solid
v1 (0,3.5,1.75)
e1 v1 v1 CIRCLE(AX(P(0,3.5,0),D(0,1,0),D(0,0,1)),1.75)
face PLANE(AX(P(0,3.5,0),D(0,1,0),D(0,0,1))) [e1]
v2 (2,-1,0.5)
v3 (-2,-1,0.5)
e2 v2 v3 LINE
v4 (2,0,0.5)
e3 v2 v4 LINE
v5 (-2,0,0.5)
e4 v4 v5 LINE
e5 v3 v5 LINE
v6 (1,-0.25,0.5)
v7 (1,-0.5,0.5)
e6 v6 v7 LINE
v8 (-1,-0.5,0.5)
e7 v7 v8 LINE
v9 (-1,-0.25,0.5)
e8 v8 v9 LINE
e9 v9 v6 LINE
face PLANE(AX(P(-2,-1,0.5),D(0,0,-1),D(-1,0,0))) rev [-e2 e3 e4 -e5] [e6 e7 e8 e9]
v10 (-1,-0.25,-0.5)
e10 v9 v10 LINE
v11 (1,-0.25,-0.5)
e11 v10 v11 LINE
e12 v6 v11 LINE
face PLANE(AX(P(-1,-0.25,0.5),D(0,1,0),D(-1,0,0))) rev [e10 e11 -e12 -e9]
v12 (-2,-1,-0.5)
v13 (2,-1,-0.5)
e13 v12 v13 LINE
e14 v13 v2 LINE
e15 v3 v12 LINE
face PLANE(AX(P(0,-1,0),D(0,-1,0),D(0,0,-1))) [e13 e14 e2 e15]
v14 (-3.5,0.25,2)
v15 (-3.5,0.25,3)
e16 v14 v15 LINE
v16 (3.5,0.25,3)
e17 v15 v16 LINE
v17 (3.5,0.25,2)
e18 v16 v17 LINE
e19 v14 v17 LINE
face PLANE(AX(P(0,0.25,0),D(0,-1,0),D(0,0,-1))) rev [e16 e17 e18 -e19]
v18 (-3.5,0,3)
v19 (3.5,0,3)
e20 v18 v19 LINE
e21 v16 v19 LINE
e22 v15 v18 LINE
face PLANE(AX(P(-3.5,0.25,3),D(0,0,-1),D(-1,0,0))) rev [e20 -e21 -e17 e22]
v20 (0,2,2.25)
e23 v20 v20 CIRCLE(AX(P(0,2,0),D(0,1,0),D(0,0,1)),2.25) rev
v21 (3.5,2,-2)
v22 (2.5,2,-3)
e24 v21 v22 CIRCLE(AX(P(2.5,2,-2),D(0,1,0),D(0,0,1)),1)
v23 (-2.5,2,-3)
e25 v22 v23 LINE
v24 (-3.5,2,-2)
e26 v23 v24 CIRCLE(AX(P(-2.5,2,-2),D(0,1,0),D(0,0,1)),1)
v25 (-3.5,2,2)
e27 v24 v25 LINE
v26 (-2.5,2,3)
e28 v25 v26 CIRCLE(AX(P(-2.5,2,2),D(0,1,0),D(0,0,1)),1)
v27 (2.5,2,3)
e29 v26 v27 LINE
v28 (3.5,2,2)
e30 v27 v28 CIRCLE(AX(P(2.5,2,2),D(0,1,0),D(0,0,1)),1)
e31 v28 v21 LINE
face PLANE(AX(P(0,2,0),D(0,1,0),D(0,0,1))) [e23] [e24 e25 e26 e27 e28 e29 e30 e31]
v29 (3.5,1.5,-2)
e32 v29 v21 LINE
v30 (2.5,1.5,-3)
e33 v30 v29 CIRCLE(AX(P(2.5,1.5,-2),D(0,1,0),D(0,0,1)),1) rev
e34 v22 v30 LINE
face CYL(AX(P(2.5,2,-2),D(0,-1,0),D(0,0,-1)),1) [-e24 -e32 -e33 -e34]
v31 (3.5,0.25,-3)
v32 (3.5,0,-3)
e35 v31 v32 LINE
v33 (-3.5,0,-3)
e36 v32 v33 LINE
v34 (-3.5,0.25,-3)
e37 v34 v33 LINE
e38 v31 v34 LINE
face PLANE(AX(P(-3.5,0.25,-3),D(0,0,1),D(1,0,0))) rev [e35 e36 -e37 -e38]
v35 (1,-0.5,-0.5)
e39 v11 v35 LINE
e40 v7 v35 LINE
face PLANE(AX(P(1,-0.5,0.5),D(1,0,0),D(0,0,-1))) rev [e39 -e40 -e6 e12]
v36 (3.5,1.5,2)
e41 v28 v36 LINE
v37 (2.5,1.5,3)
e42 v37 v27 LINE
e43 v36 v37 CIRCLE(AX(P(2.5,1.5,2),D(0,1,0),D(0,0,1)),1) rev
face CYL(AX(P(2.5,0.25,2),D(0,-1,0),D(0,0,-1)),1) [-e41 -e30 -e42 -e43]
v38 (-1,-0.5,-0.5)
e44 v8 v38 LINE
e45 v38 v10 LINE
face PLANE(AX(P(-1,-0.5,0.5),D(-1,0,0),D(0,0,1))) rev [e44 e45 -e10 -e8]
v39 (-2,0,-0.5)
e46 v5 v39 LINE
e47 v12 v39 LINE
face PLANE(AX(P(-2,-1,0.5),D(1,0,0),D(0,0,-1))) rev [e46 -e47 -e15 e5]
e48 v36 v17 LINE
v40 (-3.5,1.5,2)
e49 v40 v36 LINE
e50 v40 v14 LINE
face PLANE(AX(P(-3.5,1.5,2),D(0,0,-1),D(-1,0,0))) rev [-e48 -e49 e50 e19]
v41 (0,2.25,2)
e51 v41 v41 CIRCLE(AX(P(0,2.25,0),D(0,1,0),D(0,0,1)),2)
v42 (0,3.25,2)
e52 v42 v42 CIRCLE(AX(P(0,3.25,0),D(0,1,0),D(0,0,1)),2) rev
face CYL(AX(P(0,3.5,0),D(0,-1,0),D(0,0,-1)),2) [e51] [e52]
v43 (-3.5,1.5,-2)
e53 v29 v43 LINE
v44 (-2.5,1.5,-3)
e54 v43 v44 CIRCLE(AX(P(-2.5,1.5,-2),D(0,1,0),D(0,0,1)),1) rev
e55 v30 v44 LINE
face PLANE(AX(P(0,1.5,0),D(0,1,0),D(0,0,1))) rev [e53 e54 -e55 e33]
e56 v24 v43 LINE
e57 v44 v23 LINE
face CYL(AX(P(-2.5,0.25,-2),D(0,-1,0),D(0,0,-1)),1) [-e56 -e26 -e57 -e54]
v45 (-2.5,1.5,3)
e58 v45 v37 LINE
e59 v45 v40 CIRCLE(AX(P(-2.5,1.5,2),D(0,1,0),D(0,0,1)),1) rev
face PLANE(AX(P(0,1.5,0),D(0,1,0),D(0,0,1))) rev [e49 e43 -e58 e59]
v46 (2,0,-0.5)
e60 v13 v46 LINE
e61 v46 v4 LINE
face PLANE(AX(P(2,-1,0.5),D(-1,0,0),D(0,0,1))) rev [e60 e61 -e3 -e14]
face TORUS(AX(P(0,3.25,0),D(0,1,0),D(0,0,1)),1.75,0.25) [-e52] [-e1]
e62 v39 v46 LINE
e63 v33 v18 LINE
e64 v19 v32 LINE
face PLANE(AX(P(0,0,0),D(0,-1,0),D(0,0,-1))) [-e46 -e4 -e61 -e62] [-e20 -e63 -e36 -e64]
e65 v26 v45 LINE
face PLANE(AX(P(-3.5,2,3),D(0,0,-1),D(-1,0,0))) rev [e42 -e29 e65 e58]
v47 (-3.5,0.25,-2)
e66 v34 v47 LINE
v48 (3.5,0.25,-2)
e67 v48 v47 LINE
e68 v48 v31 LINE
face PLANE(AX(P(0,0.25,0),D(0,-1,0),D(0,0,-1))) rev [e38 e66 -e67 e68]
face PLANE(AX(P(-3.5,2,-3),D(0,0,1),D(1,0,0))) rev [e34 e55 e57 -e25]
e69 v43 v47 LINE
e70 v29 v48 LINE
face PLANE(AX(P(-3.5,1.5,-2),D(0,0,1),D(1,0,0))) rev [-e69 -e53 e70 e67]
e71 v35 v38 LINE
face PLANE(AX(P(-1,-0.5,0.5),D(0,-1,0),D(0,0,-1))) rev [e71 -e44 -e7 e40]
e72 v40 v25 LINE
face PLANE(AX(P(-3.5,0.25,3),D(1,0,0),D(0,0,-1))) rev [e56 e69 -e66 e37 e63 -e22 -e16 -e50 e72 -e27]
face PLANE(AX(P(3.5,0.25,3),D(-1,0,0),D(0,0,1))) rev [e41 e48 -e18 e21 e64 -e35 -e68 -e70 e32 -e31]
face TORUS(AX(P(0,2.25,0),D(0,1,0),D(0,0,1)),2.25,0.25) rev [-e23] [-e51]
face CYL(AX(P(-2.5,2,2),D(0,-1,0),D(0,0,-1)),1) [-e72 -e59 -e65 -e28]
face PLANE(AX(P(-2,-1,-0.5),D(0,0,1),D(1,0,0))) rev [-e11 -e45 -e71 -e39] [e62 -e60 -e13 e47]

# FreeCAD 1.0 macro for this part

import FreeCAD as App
import Part
import Sketcher
from FreeCAD import Vector


def edges_at(feature, points):
    """Names of the edges that pass closest to the given points."""
    edges = feature.Shape.Edges
    near = lambda p: min(range(len(edges)), key=lambda i: edges[i].distToShape(Part.Vertex(*p))[0])
    return sorted({f"Edge{near(p) + 1}" for p in points})


def add_polygon(sketch, points):
    """Adds a closed chain of lines whose ends are joined by coincident constraints."""
    first, n = sketch.GeometryCount, len(points)
    for a, b in zip(points, points[1:] + points[:1]):
        sketch.addGeometry(Part.LineSegment(App.Vector(*a, 0), App.Vector(*b, 0)), False)
    for i in range(n):
        sketch.addConstraint(Sketcher.Constraint("Coincident", first + i, 2, first + (i + 1) % n, 1))

doc = App.newDocument("Part")
body = doc.addObject("PartDesign::Body", "Body")

# Sketch on XZ plane
sketch1 = body.newObject("Sketcher::SketchObject", "Sketch")
sketch1.AttachmentSupport = (doc.getObject("XZ_Plane"), [""])
sketch1.MapMode = "FlatFace"
add_polygon(sketch1, [(-3.5, -3), (-3.5, 3), (3.5, 3), (3.5, -3)])  # lines 0-3
sketch1.addConstraint([
    Sketcher.Constraint("Vertical", 0),
    Sketcher.Constraint("Horizontal", 1),
    Sketcher.Constraint("Vertical", 2),
    Sketcher.Constraint("Horizontal", 3),
    Sketcher.Constraint("Symmetric", 0, 2, 2, 2, -1, 1),
    Sketcher.Constraint("DistanceX", 1, 1, 1, 2, 7.0),
    Sketcher.Constraint("DistanceY", 0, 1, 0, 2, 6.0),
])
pad1 = body.newObject("PartDesign::Pad", "Pad")
pad1.Profile = sketch1
pad1.Length = 0.25
pad1.Reversed = True

# Sketch on XZ plane
sketch2 = body.newObject("Sketcher::SketchObject", "Sketch001")
sketch2.AttachmentSupport = (doc.getObject("XZ_Plane"), [""])
sketch2.MapMode = "FlatFace"
sketch2.AttachmentOffset = App.Placement(Vector(0, 0, -0.25), App.Rotation())
add_polygon(sketch2, [(-3.5, -2), (-3.5, 2), (3.5, 2), (3.5, -2)])  # lines 0-3
sketch2.addConstraint([
    Sketcher.Constraint("Vertical", 0),
    Sketcher.Constraint("Horizontal", 1),
    Sketcher.Constraint("Vertical", 2),
    Sketcher.Constraint("Horizontal", 3),
    Sketcher.Constraint("Symmetric", 0, 2, 2, 2, -1, 1),
    Sketcher.Constraint("DistanceX", 1, 1, 1, 2, 7.0),
    Sketcher.Constraint("DistanceY", 0, 1, 0, 2, 4.0),
])
pad2 = body.newObject("PartDesign::Pad", "Pad001")
pad2.Profile = sketch2
pad2.Length = 1.25
pad2.Reversed = True

# Sketch on XZ plane
sketch3 = body.newObject("Sketcher::SketchObject", "Sketch002")
sketch3.AttachmentSupport = (doc.getObject("XZ_Plane"), [""])
sketch3.MapMode = "FlatFace"
sketch3.AttachmentOffset = App.Placement(Vector(0, 0, -1.5), App.Rotation())
add_polygon(sketch3, [(-3.5, -3), (-3.5, 3), (3.5, 3), (3.5, -3)])  # lines 0-3
sketch3.addConstraint([
    Sketcher.Constraint("Vertical", 0),
    Sketcher.Constraint("Horizontal", 1),
    Sketcher.Constraint("Vertical", 2),
    Sketcher.Constraint("Horizontal", 3),
    Sketcher.Constraint("Symmetric", 0, 2, 2, 2, -1, 1),
    Sketcher.Constraint("DistanceX", 1, 1, 1, 2, 7.0),
    Sketcher.Constraint("DistanceY", 0, 1, 0, 2, 6.0),
])
pad3 = body.newObject("PartDesign::Pad", "Pad002")
pad3.Profile = sketch3
pad3.Length = 0.5
pad3.Reversed = True

# Sketch on XZ plane
sketch4 = body.newObject("Sketcher::SketchObject", "Sketch003")
sketch4.AttachmentSupport = (doc.getObject("XZ_Plane"), [""])
sketch4.MapMode = "FlatFace"
sketch4.AttachmentOffset = App.Placement(Vector(0, 0, -2), App.Rotation())
sketch4.addGeometry(Part.Circle(Vector(0, 0, 0), Vector(0, 0, 1), 2), False)
sketch4.addConstraint([
    Sketcher.Constraint("Coincident", 0, 3, -1, 1),
    Sketcher.Constraint("Diameter", 0, 4.0),
])
pad4 = body.newObject("PartDesign::Pad", "Pad003")
pad4.Profile = sketch4
pad4.Length = 1.5
pad4.Reversed = True
doc.recompute()

fillet = body.newObject("PartDesign::Fillet", "Fillet")
fillet.Base = (pad4, edges_at(pad4, [(0, 2, -2), (0, 3.5, -2)]))
fillet.Radius = 0.25
doc.recompute()

fillet2 = body.newObject("PartDesign::Fillet", "Fillet001")
fillet2.Base = (fillet, edges_at(fillet, [
    (-3.5, 1.75, -3),
    (3.5, 1.75, -3),
    (3.5, 1.75, 3),
    (-3.5, 1.75, 3),
]))
fillet2.Radius = 1

# Sketch on XZ plane
sketch5 = body.newObject("Sketcher::SketchObject", "Sketch004")
sketch5.AttachmentSupport = (doc.getObject("XZ_Plane"), [""])
sketch5.MapMode = "FlatFace"
add_polygon(sketch5, [(-2, 0.5), (-2, -0.5), (2, -0.5), (2, 0.5)])  # lines 0-3
sketch5.addConstraint([
    Sketcher.Constraint("Vertical", 0),
    Sketcher.Constraint("Horizontal", 1),
    Sketcher.Constraint("Vertical", 2),
    Sketcher.Constraint("Horizontal", 3),
    Sketcher.Constraint("Symmetric", 0, 2, 2, 2, -1, 1),
    Sketcher.Constraint("DistanceX", 1, 1, 1, 2, 4.0),
    Sketcher.Constraint("DistanceY", 0, 2, 0, 1, 1.0),
])
pad5 = body.newObject("PartDesign::Pad", "Pad004")
pad5.Profile = sketch5
pad5.Length = 1

# Sketch on XY plane
sketch6 = body.newObject("Sketcher::SketchObject", "Sketch005")
sketch6.AttachmentSupport = (doc.getObject("XY_Plane"), [""])
sketch6.MapMode = "FlatFace"
sketch6.AttachmentOffset = App.Placement(Vector(0, 0, -0.5), App.Rotation())
add_polygon(sketch6, [(1, -0.25), (1, -0.5), (-1, -0.5), (-1, -0.25)])  # lines 0-3
sketch6.addConstraint([
    Sketcher.Constraint("Vertical", 0),
    Sketcher.Constraint("Horizontal", 1),
    Sketcher.Constraint("Vertical", 2),
    Sketcher.Constraint("Horizontal", 3),
    Sketcher.Constraint("DistanceX", 1, 2, 1, 1, 2.0),
    Sketcher.Constraint("DistanceX", -1, 1, 0, 2, 1.0),
    Sketcher.Constraint("DistanceY", 0, 2, 0, 1, 0.25),
    Sketcher.Constraint("DistanceY", 0, 2, -1, 1, 0.5),
])
pocket1 = body.newObject("PartDesign::Pocket", "Pocket")
pocket1.Profile = sketch6
pocket1.Length = 1
pocket1.Reversed = True

doc.recompute()
